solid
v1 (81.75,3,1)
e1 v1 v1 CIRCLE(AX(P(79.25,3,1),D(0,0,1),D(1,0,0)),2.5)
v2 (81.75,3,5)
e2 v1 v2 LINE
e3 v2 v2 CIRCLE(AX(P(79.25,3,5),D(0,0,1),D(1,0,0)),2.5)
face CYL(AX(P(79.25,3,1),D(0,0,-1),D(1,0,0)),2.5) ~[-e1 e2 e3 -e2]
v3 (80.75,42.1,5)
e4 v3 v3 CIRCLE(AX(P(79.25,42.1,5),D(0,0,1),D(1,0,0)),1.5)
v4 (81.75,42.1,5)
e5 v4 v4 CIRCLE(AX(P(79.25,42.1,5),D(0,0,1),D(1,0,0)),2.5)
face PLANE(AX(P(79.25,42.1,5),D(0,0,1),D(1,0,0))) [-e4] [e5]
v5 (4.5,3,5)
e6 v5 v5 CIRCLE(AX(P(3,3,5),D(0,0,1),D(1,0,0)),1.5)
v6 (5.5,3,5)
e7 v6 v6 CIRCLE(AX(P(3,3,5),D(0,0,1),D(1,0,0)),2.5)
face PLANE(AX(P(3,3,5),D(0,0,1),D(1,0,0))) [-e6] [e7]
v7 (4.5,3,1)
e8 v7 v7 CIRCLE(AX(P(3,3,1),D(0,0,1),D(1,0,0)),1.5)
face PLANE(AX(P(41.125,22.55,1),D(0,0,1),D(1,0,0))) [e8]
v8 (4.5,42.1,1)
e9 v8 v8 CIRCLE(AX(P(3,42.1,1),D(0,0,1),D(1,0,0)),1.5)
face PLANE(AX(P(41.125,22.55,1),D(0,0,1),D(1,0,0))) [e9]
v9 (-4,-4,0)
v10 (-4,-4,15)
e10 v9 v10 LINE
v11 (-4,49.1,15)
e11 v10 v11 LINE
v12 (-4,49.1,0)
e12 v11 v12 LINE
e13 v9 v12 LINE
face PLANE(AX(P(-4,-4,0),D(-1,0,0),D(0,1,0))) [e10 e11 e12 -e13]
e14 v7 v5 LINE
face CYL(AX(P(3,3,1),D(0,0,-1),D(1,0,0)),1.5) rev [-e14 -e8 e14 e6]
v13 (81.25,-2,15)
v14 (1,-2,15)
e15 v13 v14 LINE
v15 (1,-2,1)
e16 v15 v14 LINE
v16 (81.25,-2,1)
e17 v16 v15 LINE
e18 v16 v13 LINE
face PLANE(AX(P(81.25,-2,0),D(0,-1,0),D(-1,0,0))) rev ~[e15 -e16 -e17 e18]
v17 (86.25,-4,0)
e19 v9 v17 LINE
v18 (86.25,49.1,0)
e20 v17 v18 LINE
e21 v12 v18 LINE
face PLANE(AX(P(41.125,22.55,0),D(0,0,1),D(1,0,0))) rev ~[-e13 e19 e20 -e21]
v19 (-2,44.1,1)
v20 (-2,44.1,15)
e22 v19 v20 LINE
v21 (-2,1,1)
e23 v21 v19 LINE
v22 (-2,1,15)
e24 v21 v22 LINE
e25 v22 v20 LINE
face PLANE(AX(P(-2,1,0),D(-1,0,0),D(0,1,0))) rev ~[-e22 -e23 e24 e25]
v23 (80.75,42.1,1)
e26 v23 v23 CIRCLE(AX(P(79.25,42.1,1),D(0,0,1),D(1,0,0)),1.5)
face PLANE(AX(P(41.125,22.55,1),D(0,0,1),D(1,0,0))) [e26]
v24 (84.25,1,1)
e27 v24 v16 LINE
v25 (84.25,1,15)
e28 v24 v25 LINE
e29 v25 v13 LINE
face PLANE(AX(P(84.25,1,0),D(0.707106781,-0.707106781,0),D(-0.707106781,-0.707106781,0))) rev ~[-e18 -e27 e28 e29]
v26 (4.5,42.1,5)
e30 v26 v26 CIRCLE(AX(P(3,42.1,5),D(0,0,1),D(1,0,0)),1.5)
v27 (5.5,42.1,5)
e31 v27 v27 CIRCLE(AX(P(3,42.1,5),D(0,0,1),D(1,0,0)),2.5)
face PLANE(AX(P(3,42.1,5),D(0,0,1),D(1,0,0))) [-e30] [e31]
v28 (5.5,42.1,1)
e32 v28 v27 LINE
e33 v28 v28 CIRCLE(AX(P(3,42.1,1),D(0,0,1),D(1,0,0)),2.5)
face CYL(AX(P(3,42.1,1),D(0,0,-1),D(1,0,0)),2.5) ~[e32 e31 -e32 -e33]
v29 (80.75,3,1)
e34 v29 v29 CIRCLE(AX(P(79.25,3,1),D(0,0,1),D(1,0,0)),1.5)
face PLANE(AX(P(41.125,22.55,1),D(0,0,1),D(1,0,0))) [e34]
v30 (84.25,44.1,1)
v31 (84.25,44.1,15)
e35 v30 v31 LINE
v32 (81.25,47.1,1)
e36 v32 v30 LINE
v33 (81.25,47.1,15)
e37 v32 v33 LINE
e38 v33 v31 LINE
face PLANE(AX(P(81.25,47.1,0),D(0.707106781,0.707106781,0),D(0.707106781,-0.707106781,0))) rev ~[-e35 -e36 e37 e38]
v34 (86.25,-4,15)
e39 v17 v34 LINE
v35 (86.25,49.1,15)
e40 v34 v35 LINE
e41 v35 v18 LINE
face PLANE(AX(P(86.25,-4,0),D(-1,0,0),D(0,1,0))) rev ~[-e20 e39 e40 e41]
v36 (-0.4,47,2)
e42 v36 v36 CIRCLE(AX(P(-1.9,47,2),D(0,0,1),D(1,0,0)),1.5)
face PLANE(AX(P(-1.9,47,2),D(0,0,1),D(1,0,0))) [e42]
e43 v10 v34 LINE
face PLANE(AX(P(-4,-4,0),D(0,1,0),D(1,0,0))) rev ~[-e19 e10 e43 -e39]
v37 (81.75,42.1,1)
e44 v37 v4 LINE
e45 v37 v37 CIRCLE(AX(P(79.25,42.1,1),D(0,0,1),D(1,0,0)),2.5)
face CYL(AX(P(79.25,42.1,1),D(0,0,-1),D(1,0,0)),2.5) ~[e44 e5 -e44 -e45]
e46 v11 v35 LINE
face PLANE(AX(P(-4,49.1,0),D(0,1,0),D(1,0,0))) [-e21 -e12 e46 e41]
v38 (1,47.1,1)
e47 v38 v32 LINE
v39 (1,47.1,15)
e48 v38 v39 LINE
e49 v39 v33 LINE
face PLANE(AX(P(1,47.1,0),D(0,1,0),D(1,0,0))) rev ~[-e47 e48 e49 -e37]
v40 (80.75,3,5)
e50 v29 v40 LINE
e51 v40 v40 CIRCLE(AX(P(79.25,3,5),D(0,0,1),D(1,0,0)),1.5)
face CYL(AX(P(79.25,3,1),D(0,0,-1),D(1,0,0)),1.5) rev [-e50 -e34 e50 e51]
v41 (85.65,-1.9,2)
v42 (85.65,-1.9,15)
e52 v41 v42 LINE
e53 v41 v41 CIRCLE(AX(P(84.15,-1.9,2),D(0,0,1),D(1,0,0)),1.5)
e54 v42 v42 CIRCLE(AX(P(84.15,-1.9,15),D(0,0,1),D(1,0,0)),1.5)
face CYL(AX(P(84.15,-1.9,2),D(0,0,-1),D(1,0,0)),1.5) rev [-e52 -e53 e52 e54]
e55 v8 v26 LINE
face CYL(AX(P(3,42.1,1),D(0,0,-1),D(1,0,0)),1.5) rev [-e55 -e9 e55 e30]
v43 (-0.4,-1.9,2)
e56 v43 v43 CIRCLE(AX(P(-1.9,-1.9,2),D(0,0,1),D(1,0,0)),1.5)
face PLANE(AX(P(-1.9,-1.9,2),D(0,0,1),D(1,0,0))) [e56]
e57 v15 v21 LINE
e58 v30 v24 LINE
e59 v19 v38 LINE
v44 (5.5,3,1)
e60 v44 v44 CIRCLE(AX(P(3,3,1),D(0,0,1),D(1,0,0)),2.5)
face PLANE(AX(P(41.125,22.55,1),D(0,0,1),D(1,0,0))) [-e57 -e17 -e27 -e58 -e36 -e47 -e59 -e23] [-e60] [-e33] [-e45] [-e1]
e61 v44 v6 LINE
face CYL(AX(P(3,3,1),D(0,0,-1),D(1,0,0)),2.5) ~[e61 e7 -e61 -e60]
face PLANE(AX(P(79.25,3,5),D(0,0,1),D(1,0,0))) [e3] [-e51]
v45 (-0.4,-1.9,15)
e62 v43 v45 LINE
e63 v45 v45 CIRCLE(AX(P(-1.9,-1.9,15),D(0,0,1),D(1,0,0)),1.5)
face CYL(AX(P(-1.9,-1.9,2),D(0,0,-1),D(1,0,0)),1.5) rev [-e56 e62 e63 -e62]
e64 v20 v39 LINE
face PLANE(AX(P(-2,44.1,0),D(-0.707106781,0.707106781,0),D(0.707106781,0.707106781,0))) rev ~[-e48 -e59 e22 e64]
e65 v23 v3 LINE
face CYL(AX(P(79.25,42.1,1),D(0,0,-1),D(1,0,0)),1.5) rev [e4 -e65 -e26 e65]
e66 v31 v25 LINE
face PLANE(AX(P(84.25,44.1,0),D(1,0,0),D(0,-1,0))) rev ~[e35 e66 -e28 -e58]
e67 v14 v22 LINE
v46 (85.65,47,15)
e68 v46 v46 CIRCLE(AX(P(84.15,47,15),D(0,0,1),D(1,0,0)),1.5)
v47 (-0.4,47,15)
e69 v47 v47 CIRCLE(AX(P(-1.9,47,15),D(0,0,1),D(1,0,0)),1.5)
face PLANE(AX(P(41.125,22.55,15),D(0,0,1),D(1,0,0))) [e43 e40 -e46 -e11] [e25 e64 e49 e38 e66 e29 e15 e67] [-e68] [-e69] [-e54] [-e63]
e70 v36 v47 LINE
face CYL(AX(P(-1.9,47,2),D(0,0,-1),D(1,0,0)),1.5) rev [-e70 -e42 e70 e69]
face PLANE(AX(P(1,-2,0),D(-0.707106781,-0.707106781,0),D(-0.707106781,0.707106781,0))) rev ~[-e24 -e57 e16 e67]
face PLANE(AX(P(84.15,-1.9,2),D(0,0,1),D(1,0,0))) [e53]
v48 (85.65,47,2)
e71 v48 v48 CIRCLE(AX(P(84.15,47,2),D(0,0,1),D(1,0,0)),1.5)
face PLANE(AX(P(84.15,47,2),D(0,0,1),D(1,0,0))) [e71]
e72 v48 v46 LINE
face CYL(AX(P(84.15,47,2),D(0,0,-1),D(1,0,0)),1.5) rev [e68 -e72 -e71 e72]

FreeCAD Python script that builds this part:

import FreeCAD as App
import Part
import Sketcher
Q = App.Units.Quantity

doc = App.newDocument("Part")
body = doc.addObject("PartDesign::Body", "Body")
body.AllowCompound = True

# Sketch on XY plane
sketch1 = body.newObject("Sketcher::SketchObject", "Sketch")
sketch1.AttachmentSupport = (doc.getObject("XY_Plane"), [""])
sketch1.MapMode = "FlatFace"
sketch1.addGeometry([
    Part.Circle(App.Vector(3, 42.1, 0), App.Vector(0, 0, 1), 1.5),
    Part.Circle(App.Vector(3, 3, 0), App.Vector(0, 0, 1), 1.5),
    Part.Circle(App.Vector(79.25, 42.1, 0), App.Vector(0, 0, 1), 1.5),
    Part.Circle(App.Vector(79.25, 3, 0), App.Vector(0, 0, 1), 1.5),
], False)
sketch1.addConstraint([
    Sketcher.Constraint("Equal", 0, 1),
    Sketcher.Constraint("Equal", 1, 2),
    Sketcher.Constraint("Equal", 2, 3),
    Sketcher.Constraint("Horizontal", 0, 3, 2, 3),
    Sketcher.Constraint("Horizontal", 1, 3, 3, 3),
    Sketcher.Constraint("Vertical", 0, 3, 1, 3),
    Sketcher.Constraint("Vertical", 2, 3, 3, 3),
    Sketcher.Constraint("Diameter", 0, Q("3 mm")),
    Sketcher.Constraint("DistanceX", -1, 1, 0, 3, Q("3 mm")),
    Sketcher.Constraint("DistanceY", -1, 1, 1, 3, Q("3 mm")),
    Sketcher.Constraint("DistanceY", -1, 1, 0, 3, Q("42.1 mm")),
    Sketcher.Constraint("DistanceX", -1, 1, 2, 3, Q("79.25 mm")),
])
pad1 = body.newObject("PartDesign::Pad", "Pad")
pad1.Profile = sketch1
pad1.Length = 4
body2 = doc.addObject("PartDesign::Body", "Body001")
body2.AllowCompound = True
doc.recompute()

body.Placement = App.Placement(App.Vector(0, 0, 1), App.Rotation(App.Vector(0, 0, 1), 0))
boolean = body2.newObject("PartDesign::Boolean", "Boolean")
boolean.Type = "Fuse"
boolean.addObjects([body])
body3 = doc.addObject("PartDesign::Body", "Body002")
body3.AllowCompound = True

# Sketch on XY plane
sketch2 = body3.newObject("Sketcher::SketchObject", "Sketch001")
sketch2.AttachmentSupport = (doc.getObject("XY_Plane002"), [""])
sketch2.MapMode = "FlatFace"
sketch2.addGeometry([
    Part.Circle(App.Vector(3, 42.1, 0), App.Vector(0, 0, 1), 2.5),
    Part.Circle(App.Vector(79.25, 3, 0), App.Vector(0, 0, 1), 2.5),
    Part.Circle(App.Vector(79.25, 42.1, 0), App.Vector(0, 0, 1), 2.5),
    Part.Circle(App.Vector(3, 3, 0), App.Vector(0, 0, 1), 2.5),
], False)
sketch2.addConstraint([
    Sketcher.Constraint("Equal", 0, 1),
    Sketcher.Constraint("Equal", 1, 2),
    Sketcher.Constraint("Equal", 2, 3),
    Sketcher.Constraint("Horizontal", 0, 3, 2, 3),
    Sketcher.Constraint("Horizontal", 1, 3, 3, 3),
    Sketcher.Constraint("Vertical", 1, 3, 2, 3),
    Sketcher.Constraint("Vertical", 0, 3, 3, 3),
    Sketcher.Constraint("Diameter", 0, Q("5 mm")),
    Sketcher.Constraint("DistanceX", -1, 1, 0, 3, Q("3 mm")),
    Sketcher.Constraint("DistanceY", -1, 1, 1, 3, Q("3 mm")),
    Sketcher.Constraint("DistanceY", -1, 1, 0, 3, Q("42.1 mm")),
    Sketcher.Constraint("DistanceX", -1, 1, 1, 3, Q("79.25 mm")),
])
pad2 = body3.newObject("PartDesign::Pad", "Pad001")
pad2.Profile = sketch2
pad2.Length = 4
body4 = doc.addObject("PartDesign::Body", "Body003")
body4.AllowCompound = True
doc.recompute()

body3.Placement = App.Placement(App.Vector(0, 0, 1), App.Rotation(App.Vector(0, 0, 1), 0))
boolean2 = body4.newObject("PartDesign::Boolean", "Boolean001")
boolean2.Type = "Fuse"
boolean2.addObjects([body3])
doc.recompute()

boolean3 = body4.newObject("PartDesign::Boolean", "Boolean002")
boolean3.Type = "Cut"
boolean3.addObjects([body2])
body5 = doc.addObject("PartDesign::Body", "Body004")

# Sketch on XY plane
sketch3 = body5.newObject("Sketcher::SketchObject", "Sketch002")
sketch3.AttachmentSupport = (doc.getObject("XY_Plane004"), [""])
sketch3.MapMode = "FlatFace"
sketch3.addGeometry([
    Part.LineSegment(App.Vector(-4, 49.1, 0), App.Vector(-4, -4, 0)),
    Part.LineSegment(App.Vector(-4, -4, 0), App.Vector(86.25, -4, 0)),
    Part.LineSegment(App.Vector(86.25, -4, 0), App.Vector(86.25, 49.1, 0)),
    Part.LineSegment(App.Vector(86.25, 49.1, 0), App.Vector(-4, 49.1, 0)),
], False)
sketch3.addConstraint([
    Sketcher.Constraint("Coincident", 0, 2, 1, 1),
    Sketcher.Constraint("Coincident", 1, 2, 2, 1),
    Sketcher.Constraint("Coincident", 2, 2, 3, 1),
    Sketcher.Constraint("Coincident", 3, 2, 0, 1),
    Sketcher.Constraint("Vertical", 0),
    Sketcher.Constraint("Horizontal", 1),
    Sketcher.Constraint("Vertical", 2),
    Sketcher.Constraint("Horizontal", 3),
    Sketcher.Constraint("DistanceY", 0, 2, 0, 1, Q("53.1 mm")),
    Sketcher.Constraint("DistanceX", 0, 2, -1, 1, Q("4 mm")),
    Sketcher.Constraint("DistanceY", 0, 2, -1, 1, Q("4 mm")),
    Sketcher.Constraint("DistanceX", 1, 1, 1, 2, Q("90.25 mm")),
])
pad3 = body5.newObject("PartDesign::Pad", "Pad002")
pad3.Profile = sketch3
pad3.Length = 1
body6 = doc.addObject("PartDesign::Body", "Body005")
body6.AllowCompound = True

# Sketch on XY plane
sketch4 = body6.newObject("Sketcher::SketchObject", "Sketch003")
sketch4.AttachmentSupport = (doc.getObject("XY_Plane005"), [""])
sketch4.MapMode = "FlatFace"
sketch4.addGeometry([
    Part.Circle(App.Vector(-1.9, 47, 0), App.Vector(0, 0, 1), 1.5),
    Part.Circle(App.Vector(84.15, 47, 0), App.Vector(0, 0, 1), 1.5),
    Part.Circle(App.Vector(-1.9, -1.9, 0), App.Vector(0, 0, 1), 1.5),
    Part.Circle(App.Vector(84.15, -1.9, 0), App.Vector(0, 0, 1), 1.5),
], False)
sketch4.addConstraint([
    Sketcher.Constraint("Equal", 0, 1),
    Sketcher.Constraint("Equal", 1, 2),
    Sketcher.Constraint("Equal", 2, 3),
    Sketcher.Constraint("Horizontal", 0, 3, 1, 3),
    Sketcher.Constraint("Horizontal", 2, 3, 3, 3),
    Sketcher.Constraint("Vertical", 0, 3, 2, 3),
    Sketcher.Constraint("Vertical", 1, 3, 3, 3),
    Sketcher.Constraint("Diameter", 0, Q("3 mm")),
    Sketcher.Constraint("DistanceY", -1, 1, 0, 3, Q("47 mm")),
    Sketcher.Constraint("DistanceX", 0, 3, -1, 1, Q("1.9 mm")),
    Sketcher.Constraint("DistanceY", 2, 3, -1, 1, Q("1.9 mm")),
    Sketcher.Constraint("DistanceX", -1, 1, 1, 3, Q("84.15 mm")),
])
pad4 = body6.newObject("PartDesign::Pad", "Pad003")
pad4.Profile = sketch4
pad4.Length = 13
body7 = doc.addObject("PartDesign::Body", "Body006")
body7.AllowCompound = True
doc.recompute()

body6.Placement = App.Placement(App.Vector(0, 0, 2), App.Rotation(App.Vector(0, 0, 1), 0))
boolean4 = body7.newObject("PartDesign::Boolean", "Boolean003")
boolean4.Type = "Fuse"
boolean4.addObjects([body6])
body8 = doc.addObject("PartDesign::Body", "Body007")
body8.AllowCompound = True

# Sketch on XY plane
sketch5 = body8.newObject("Sketcher::SketchObject", "Sketch004")
sketch5.AttachmentSupport = (doc.getObject("XY_Plane007"), [""])
sketch5.MapMode = "FlatFace"
sketch5.addGeometry([
    Part.LineSegment(App.Vector(-4, 49.1, 0), App.Vector(-4, -4, 0)),  # 0
    Part.LineSegment(App.Vector(-4, -4, 0), App.Vector(86.25, -4, 0)),  # 1
    Part.LineSegment(App.Vector(86.25, -4, 0), App.Vector(86.25, 49.1, 0)),  # 2
    Part.LineSegment(App.Vector(86.25, 49.1, 0), App.Vector(-4, 49.1, 0)),  # 3
    Part.LineSegment(App.Vector(-2, 44.1, 0), App.Vector(1, 47.1, 0)),  # 4
    Part.LineSegment(App.Vector(1, 47.1, 0), App.Vector(81.25, 47.1, 0)),  # 5
    Part.LineSegment(App.Vector(81.25, 47.1, 0), App.Vector(84.25, 44.1, 0)),  # 6
    Part.LineSegment(App.Vector(84.25, 44.1, 0), App.Vector(84.25, 1, 0)),  # 7
    Part.LineSegment(App.Vector(84.25, 1, 0), App.Vector(81.25, -2, 0)),  # 8
    Part.LineSegment(App.Vector(81.25, -2, 0), App.Vector(1, -2, 0)),  # 9
    Part.LineSegment(App.Vector(1, -2, 0), App.Vector(-2, 1, 0)),  # 10
    Part.LineSegment(App.Vector(-2, 1, 0), App.Vector(-2, 44.1, 0)),  # 11
], False)
sketch5.addConstraint([
    Sketcher.Constraint("Coincident", 0, 2, 1, 1),
    Sketcher.Constraint("Coincident", 1, 2, 2, 1),
    Sketcher.Constraint("Coincident", 2, 2, 3, 1),
    Sketcher.Constraint("Coincident", 3, 2, 0, 1),
    Sketcher.Constraint("Coincident", 4, 2, 5, 1),
    Sketcher.Constraint("Coincident", 5, 2, 6, 1),
    Sketcher.Constraint("Coincident", 6, 2, 7, 1),
    Sketcher.Constraint("Coincident", 7, 2, 8, 1),
    Sketcher.Constraint("Coincident", 8, 2, 9, 1),
    Sketcher.Constraint("Coincident", 9, 2, 10, 1),
    Sketcher.Constraint("Coincident", 10, 2, 11, 1),
    Sketcher.Constraint("Coincident", 11, 2, 4, 1),
    Sketcher.Constraint("Vertical", 0),
    Sketcher.Constraint("Horizontal", 1),
    Sketcher.Constraint("Vertical", 2),
    Sketcher.Constraint("Horizontal", 3),
    Sketcher.Constraint("Horizontal", 5),
    Sketcher.Constraint("Vertical", 7),
    Sketcher.Constraint("Horizontal", 9),
    Sketcher.Constraint("Vertical", 11),
    Sketcher.Constraint("Perpendicular", 4, 6),
    Sketcher.Constraint("Perpendicular", 6, 8),
    Sketcher.Constraint("Perpendicular", 8, 10),
    Sketcher.Constraint("Horizontal", 7, 2, 10, 2),
    Sketcher.Constraint("Horizontal", 6, 2, 11, 2),
    Sketcher.Constraint("Vertical", 5, 2, 8, 2),
    Sketcher.Constraint("Vertical", 4, 2, 9, 2),
    Sketcher.Constraint("DistanceY", 0, 2, 0, 1, Q("53.1 mm")),
    Sketcher.Constraint("DistanceY", 7, 2, 7, 1, Q("43.1 mm")),
    Sketcher.Constraint("DistanceX", 0, 2, -1, 1, Q("4 mm")),
    Sketcher.Constraint("DistanceY", 0, 2, -1, 1, Q("4 mm")),
    Sketcher.Constraint("DistanceX", -1, 1, 4, 2, Q("1 mm")),
    Sketcher.Constraint("DistanceY", -1, 1, 7, 2, Q("1 mm")),
    Sketcher.Constraint("DistanceY", 8, 2, -1, 1, Q("2 mm")),
    Sketcher.Constraint("DistanceX", 5, 2, 2, 2, Q("5 mm")),
    Sketcher.Constraint("DistanceX", 1, 1, 1, 2, Q("90.25 mm")),
])
pad5 = body8.newObject("PartDesign::Pad", "Pad004")
pad5.Profile = sketch5
pad5.Length = 15
doc.recompute()

boolean5 = body8.newObject("PartDesign::Boolean", "Boolean004")
boolean5.Type = "Cut"
boolean5.addObjects([body7])
doc.recompute()

boolean6 = body8.newObject("PartDesign::Boolean", "Boolean005")
boolean6.Type = "Fuse"
boolean6.addObjects([body4])
doc.recompute()

boolean7 = body8.newObject("PartDesign::Boolean", "Boolean006")
boolean7.Type = "Fuse"
boolean7.addObjects([body5])

doc.recompute()
